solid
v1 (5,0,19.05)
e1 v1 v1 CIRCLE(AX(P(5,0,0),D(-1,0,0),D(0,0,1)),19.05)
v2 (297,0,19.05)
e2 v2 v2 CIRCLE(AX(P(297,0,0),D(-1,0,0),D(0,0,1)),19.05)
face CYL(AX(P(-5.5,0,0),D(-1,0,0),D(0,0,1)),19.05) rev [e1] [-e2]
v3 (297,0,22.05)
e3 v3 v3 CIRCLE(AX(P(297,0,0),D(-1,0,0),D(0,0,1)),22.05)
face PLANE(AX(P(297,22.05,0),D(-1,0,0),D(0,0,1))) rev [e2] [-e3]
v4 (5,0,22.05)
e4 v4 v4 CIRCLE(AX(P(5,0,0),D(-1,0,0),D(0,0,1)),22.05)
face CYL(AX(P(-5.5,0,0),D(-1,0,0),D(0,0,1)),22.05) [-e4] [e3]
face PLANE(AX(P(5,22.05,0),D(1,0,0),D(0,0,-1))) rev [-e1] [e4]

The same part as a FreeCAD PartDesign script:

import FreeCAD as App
import Part
import Sketcher
from FreeCAD import Vector
Q = App.Units.Quantity


def add_polygon(sketch, points):
    """Adds a closed chain of lines whose ends are joined by coincident constraints."""
    first, n = sketch.GeometryCount, len(points)
    for a, b in zip(points, points[1:] + points[:1]):
        sketch.addGeometry(Part.LineSegment(App.Vector(*a, 0), App.Vector(*b, 0)), False)
    for i in range(n):
        sketch.addConstraint(Sketcher.Constraint("Coincident", first + i, 2, first + (i + 1) % n, 1))

doc = App.newDocument("Part")
body = doc.addObject("PartDesign::Body", "Body")

sketch1 = body.newObject("Sketcher::SketchObject", "Sketch")
sketch1.AttachmentSupport = (doc.getObject("XY_Plane"), [""])
sketch1.MapMode = "FlatFace"
add_polygon(sketch1, [(5, 22.05), (5, 19.05), (297, 19.05), (297, 22.05)])
sketch1.addConstraint([
    Sketcher.Constraint("Vertical", 0),
    Sketcher.Constraint("Horizontal", 1),
    Sketcher.Constraint("Vertical", 2),
    Sketcher.Constraint("Horizontal", 3),
    Sketcher.Constraint("DistanceX", 1, 1, 1, 2, Q("292 mm")),
    Sketcher.Constraint("DistanceY", 0, 2, 0, 1, Q("3 mm")),
    Sketcher.Constraint("DistanceX", -1, 1, 0, 2, Q("5 mm")),
    Sketcher.Constraint("DistanceY", -1, 1, 0, 2, Q("19.05 mm")),
])
revolution = body.newObject("PartDesign::Revolution", "Revolution")
revolution.Profile = sketch1
revolution.ReferenceAxis = (sketch1, ["H_Axis"])
revolution.Angle = 360

doc.recompute()
